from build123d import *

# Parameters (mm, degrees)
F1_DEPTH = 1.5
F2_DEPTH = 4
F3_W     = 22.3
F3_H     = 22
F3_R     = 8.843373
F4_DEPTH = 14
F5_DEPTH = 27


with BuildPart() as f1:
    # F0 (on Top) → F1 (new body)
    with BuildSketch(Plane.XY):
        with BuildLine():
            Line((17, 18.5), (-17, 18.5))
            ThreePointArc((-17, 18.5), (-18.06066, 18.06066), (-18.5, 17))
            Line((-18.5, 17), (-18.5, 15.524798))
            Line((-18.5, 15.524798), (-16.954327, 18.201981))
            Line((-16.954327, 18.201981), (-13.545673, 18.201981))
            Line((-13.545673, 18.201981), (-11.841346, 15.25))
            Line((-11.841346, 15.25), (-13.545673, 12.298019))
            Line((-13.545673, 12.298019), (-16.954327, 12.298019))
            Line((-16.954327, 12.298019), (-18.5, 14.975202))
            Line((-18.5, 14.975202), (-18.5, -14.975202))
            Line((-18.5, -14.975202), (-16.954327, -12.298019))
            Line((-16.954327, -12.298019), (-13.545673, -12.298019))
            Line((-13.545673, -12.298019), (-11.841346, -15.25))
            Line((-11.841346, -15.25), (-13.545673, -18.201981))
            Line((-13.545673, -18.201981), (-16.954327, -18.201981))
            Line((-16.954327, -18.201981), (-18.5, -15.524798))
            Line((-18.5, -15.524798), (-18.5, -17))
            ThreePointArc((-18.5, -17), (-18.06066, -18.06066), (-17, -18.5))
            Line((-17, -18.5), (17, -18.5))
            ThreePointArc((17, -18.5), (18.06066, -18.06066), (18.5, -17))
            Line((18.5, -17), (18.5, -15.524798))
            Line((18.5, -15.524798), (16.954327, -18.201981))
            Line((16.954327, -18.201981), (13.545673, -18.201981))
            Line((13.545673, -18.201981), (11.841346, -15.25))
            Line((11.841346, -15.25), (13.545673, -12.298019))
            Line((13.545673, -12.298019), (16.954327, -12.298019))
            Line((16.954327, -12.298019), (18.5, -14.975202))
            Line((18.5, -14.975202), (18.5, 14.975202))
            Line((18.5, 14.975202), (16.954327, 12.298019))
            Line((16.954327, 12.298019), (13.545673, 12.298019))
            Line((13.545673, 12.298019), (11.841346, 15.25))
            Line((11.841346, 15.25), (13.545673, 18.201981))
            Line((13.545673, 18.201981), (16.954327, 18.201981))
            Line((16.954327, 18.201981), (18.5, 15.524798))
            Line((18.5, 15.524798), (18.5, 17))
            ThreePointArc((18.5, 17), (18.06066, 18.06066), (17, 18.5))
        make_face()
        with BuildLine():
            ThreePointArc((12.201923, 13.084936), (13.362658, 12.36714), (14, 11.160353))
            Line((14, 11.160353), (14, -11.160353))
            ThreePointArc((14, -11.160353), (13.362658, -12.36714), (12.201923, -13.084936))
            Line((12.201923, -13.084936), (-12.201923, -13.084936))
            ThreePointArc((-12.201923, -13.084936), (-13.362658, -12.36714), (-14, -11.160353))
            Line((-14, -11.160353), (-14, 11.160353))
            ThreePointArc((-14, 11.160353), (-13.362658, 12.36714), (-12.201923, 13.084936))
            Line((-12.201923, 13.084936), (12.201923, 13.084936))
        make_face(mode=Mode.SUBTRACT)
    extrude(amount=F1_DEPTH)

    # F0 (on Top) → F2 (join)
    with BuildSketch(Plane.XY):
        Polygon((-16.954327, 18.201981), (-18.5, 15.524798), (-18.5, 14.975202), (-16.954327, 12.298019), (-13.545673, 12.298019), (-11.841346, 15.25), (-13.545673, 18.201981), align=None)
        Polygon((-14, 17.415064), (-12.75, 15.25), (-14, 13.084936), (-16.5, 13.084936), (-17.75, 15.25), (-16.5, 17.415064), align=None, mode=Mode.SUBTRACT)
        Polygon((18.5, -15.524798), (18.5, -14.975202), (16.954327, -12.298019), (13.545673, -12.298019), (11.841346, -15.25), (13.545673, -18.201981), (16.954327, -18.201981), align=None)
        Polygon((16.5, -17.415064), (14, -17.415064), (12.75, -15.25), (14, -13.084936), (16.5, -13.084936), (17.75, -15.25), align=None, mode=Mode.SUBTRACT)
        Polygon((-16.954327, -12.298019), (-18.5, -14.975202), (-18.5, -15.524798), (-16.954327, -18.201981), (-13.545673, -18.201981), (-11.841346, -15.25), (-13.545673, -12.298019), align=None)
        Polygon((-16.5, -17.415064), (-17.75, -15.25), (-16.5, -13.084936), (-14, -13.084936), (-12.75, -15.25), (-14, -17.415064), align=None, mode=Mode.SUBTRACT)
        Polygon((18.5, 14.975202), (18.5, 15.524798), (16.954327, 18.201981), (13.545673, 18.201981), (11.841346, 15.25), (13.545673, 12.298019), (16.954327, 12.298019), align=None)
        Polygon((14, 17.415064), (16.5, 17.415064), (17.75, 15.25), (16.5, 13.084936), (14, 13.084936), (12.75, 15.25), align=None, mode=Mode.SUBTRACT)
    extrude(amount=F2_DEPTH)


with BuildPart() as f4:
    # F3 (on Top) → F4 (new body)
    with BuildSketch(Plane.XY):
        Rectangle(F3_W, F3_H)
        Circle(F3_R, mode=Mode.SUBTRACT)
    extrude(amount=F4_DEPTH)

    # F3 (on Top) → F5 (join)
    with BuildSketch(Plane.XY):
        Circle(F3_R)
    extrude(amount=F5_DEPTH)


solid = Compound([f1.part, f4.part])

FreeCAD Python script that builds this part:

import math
import FreeCAD as App
import Part
import Sketcher
Q = App.Units.Quantity

doc = App.newDocument("Part")
body = doc.addObject("PartDesign::Body", "Body")

# Sketch on XY plane
sketch1 = body.newObject("Sketcher::SketchObject", "Sketch")
sketch1.AttachmentSupport = (doc.getObject("XY_Plane"), [""])
sketch1.MapMode = "FlatFace"
sketch1.addGeometry([
    Part.LineSegment(App.Vector(17, 18.5, 0), App.Vector(-17, 18.5, 0)),  # 0
    Part.ArcOfCircle(Part.Circle(App.Vector(-16.999999, 16.999999, 0), App.Vector(0, 0, 1), 1.500001), math.radians(90.000022), math.radians(179.999978)),  # 1
    Part.LineSegment(App.Vector(-18.5, 17, 0), App.Vector(-18.5, 15.524798, 0)),  # 2
    Part.LineSegment(App.Vector(-18.5, 15.524798, 0), App.Vector(-16.954327, 18.201981, 0)),  # 3
    Part.LineSegment(App.Vector(-16.954327, 18.201981, 0), App.Vector(-13.545673, 18.201981, 0)),  # 4
    Part.LineSegment(App.Vector(-13.545673, 18.201981, 0), App.Vector(-11.841346, 15.25, 0)),  # 5
    Part.LineSegment(App.Vector(-11.841346, 15.25, 0), App.Vector(-13.545673, 12.298019, 0)),  # 6
    Part.LineSegment(App.Vector(-13.545673, 12.298019, 0), App.Vector(-16.954327, 12.298019, 0)),  # 7
    Part.LineSegment(App.Vector(-16.954327, 12.298019, 0), App.Vector(-18.5, 14.975202, 0)),  # 8
    Part.LineSegment(App.Vector(-18.5, 14.975202, 0), App.Vector(-18.5, -14.975202, 0)),  # 9
    Part.LineSegment(App.Vector(-18.5, -14.975202, 0), App.Vector(-16.954327, -12.298019, 0)),  # 10
    Part.LineSegment(App.Vector(-16.954327, -12.298019, 0), App.Vector(-13.545673, -12.298019, 0)),  # 11
    Part.LineSegment(App.Vector(-13.545673, -12.298019, 0), App.Vector(-11.841346, -15.25, 0)),  # 12
    Part.LineSegment(App.Vector(-11.841346, -15.25, 0), App.Vector(-13.545673, -18.201981, 0)),  # 13
    Part.LineSegment(App.Vector(-13.545673, -18.201981, 0), App.Vector(-16.954327, -18.201981, 0)),  # 14
    Part.LineSegment(App.Vector(-16.954327, -18.201981, 0), App.Vector(-18.5, -15.524798, 0)),  # 15
    Part.LineSegment(App.Vector(-18.5, -15.524798, 0), App.Vector(-18.5, -17, 0)),  # 16
    Part.ArcOfCircle(Part.Circle(App.Vector(-16.999999, -16.999999, 0), App.Vector(0, 0, 1), 1.500001), math.radians(-179.999978), math.radians(-90.000022)),  # 17
    Part.LineSegment(App.Vector(-17, -18.5, 0), App.Vector(17, -18.5, 0)),  # 18
    Part.ArcOfCircle(Part.Circle(App.Vector(16.999999, -16.999999, 0), App.Vector(0, 0, 1), 1.500001), math.radians(-89.999978), math.radians(-0.000022)),  # 19
    Part.LineSegment(App.Vector(18.5, -17, 0), App.Vector(18.5, -15.524798, 0)),  # 20
    Part.LineSegment(App.Vector(18.5, -15.524798, 0), App.Vector(16.954327, -18.201981, 0)),  # 21
    Part.LineSegment(App.Vector(16.954327, -18.201981, 0), App.Vector(13.545673, -18.201981, 0)),  # 22
    Part.LineSegment(App.Vector(13.545673, -18.201981, 0), App.Vector(11.841346, -15.25, 0)),  # 23
    Part.LineSegment(App.Vector(11.841346, -15.25, 0), App.Vector(13.545673, -12.298019, 0)),  # 24
    Part.LineSegment(App.Vector(13.545673, -12.298019, 0), App.Vector(16.954327, -12.298019, 0)),  # 25
    Part.LineSegment(App.Vector(16.954327, -12.298019, 0), App.Vector(18.5, -14.975202, 0)),  # 26
    Part.LineSegment(App.Vector(18.5, -14.975202, 0), App.Vector(18.5, 14.975202, 0)),  # 27
    Part.LineSegment(App.Vector(18.5, 14.975202, 0), App.Vector(16.954327, 12.298019, 0)),  # 28
    Part.LineSegment(App.Vector(16.954327, 12.298019, 0), App.Vector(13.545673, 12.298019, 0)),  # 29
    Part.LineSegment(App.Vector(13.545673, 12.298019, 0), App.Vector(11.841346, 15.25, 0)),  # 30
    Part.LineSegment(App.Vector(11.841346, 15.25, 0), App.Vector(13.545673, 18.201981, 0)),  # 31
    Part.LineSegment(App.Vector(13.545673, 18.201981, 0), App.Vector(16.954327, 18.201981, 0)),  # 32
    Part.LineSegment(App.Vector(16.954327, 18.201981, 0), App.Vector(18.5, 15.524798, 0)),  # 33
    Part.LineSegment(App.Vector(18.5, 15.524798, 0), App.Vector(18.5, 17, 0)),  # 34
    Part.ArcOfCircle(Part.Circle(App.Vector(16.999999, 16.999999, 0), App.Vector(0, 0, 1), 1.500001), math.radians(0.000022), math.radians(89.999978)),  # 35
    Part.LineSegment(App.Vector(-12.201923, 13.084936, 0), App.Vector(12.201923, 13.084936, 0)),  # 36
    Part.ArcOfCircle(Part.Circle(App.Vector(11.462578, 10.591955, 0), App.Vector(0, 0, 1), 2.600305), math.radians(12.626178), math.radians(73.481191)),  # 37
    Part.LineSegment(App.Vector(14, 11.160353, 0), App.Vector(14, -11.160353, 0)),  # 38
    Part.ArcOfCircle(Part.Circle(App.Vector(11.462578, -10.591955, 0), App.Vector(0, 0, 1), 2.600305), math.radians(-73.481191), math.radians(-12.626178)),  # 39
    Part.LineSegment(App.Vector(12.201923, -13.084936, 0), App.Vector(-12.201923, -13.084936, 0)),  # 40
    Part.ArcOfCircle(Part.Circle(App.Vector(-11.462578, -10.591955, 0), App.Vector(0, 0, 1), 2.600305), math.radians(-167.373822), math.radians(-106.518809)),  # 41
    Part.LineSegment(App.Vector(-14, -11.160353, 0), App.Vector(-14, 11.160353, 0)),  # 42
    Part.ArcOfCircle(Part.Circle(App.Vector(-11.462578, 10.591955, 0), App.Vector(0, 0, 1), 2.600305), math.radians(106.518809), math.radians(167.373822)),  # 43
], False)
sketch1.addConstraint([
    Sketcher.Constraint("Tangent", 0, 2, 1, 1),
    Sketcher.Constraint("Tangent", 1, 2, 2, 1),
    Sketcher.Constraint("Coincident", 2, 2, 3, 1),
    Sketcher.Constraint("Coincident", 3, 2, 4, 1),
    Sketcher.Constraint("Coincident", 4, 2, 5, 1),
    Sketcher.Constraint("Coincident", 5, 2, 6, 1),
    Sketcher.Constraint("Coincident", 6, 2, 7, 1),
    Sketcher.Constraint("Coincident", 7, 2, 8, 1),
    Sketcher.Constraint("Coincident", 8, 2, 9, 1),
    Sketcher.Constraint("Coincident", 9, 2, 10, 1),
    Sketcher.Constraint("Coincident", 10, 2, 11, 1),
    Sketcher.Constraint("Coincident", 11, 2, 12, 1),
    Sketcher.Constraint("Coincident", 12, 2, 13, 1),
    Sketcher.Constraint("Coincident", 13, 2, 14, 1),
    Sketcher.Constraint("Coincident", 14, 2, 15, 1),
    Sketcher.Constraint("Coincident", 15, 2, 16, 1),
    Sketcher.Constraint("Tangent", 16, 2, 17, 1),
    Sketcher.Constraint("Tangent", 17, 2, 18, 1),
    Sketcher.Constraint("Tangent", 18, 2, 19, 1),
    Sketcher.Constraint("Tangent", 19, 2, 20, 1),
    Sketcher.Constraint("Coincident", 20, 2, 21, 1),
    Sketcher.Constraint("Coincident", 21, 2, 22, 1),
    Sketcher.Constraint("Coincident", 22, 2, 23, 1),
    Sketcher.Constraint("Coincident", 23, 2, 24, 1),
    Sketcher.Constraint("Coincident", 24, 2, 25, 1),
    Sketcher.Constraint("Coincident", 25, 2, 26, 1),
    Sketcher.Constraint("Coincident", 26, 2, 27, 1),
    Sketcher.Constraint("Coincident", 27, 2, 28, 1),
    Sketcher.Constraint("Coincident", 28, 2, 29, 1),
    Sketcher.Constraint("Coincident", 29, 2, 30, 1),
    Sketcher.Constraint("Coincident", 30, 2, 31, 1),
    Sketcher.Constraint("Coincident", 31, 2, 32, 1),
    Sketcher.Constraint("Coincident", 32, 2, 33, 1),
    Sketcher.Constraint("Coincident", 33, 2, 34, 1),
    Sketcher.Constraint("Tangent", 34, 2, 35, 1),
    Sketcher.Constraint("Tangent", 35, 2, 0, 1),
    Sketcher.Constraint("Coincident", 36, 2, 37, 2),
    Sketcher.Constraint("Coincident", 37, 1, 38, 1),
    Sketcher.Constraint("Coincident", 38, 2, 39, 2),
    Sketcher.Constraint("Coincident", 39, 1, 40, 1),
    Sketcher.Constraint("Coincident", 40, 2, 41, 2),
    Sketcher.Constraint("Coincident", 41, 1, 42, 1),
    Sketcher.Constraint("Coincident", 42, 2, 43, 2),
    Sketcher.Constraint("Coincident", 43, 1, 36, 1),
    Sketcher.Constraint("Horizontal", 0),
    Sketcher.Constraint("Vertical", 2),
    Sketcher.Constraint("Horizontal", 4),
    Sketcher.Constraint("Horizontal", 7),
    Sketcher.Constraint("Vertical", 9),
    Sketcher.Constraint("Horizontal", 11),
    Sketcher.Constraint("Horizontal", 14),
    Sketcher.Constraint("Vertical", 16),
    Sketcher.Constraint("Horizontal", 18),
    Sketcher.Constraint("Vertical", 20),
    Sketcher.Constraint("Horizontal", 22),
    Sketcher.Constraint("Horizontal", 25),
    Sketcher.Constraint("Vertical", 27),
    Sketcher.Constraint("Horizontal", 29),
    Sketcher.Constraint("Horizontal", 32),
    Sketcher.Constraint("Vertical", 34),
    Sketcher.Constraint("Horizontal", 36),
    Sketcher.Constraint("Vertical", 38),
    Sketcher.Constraint("Horizontal", 40),
    Sketcher.Constraint("Vertical", 42),
    Sketcher.Constraint("Equal", 1, 17),
    Sketcher.Constraint("Equal", 17, 19),
    Sketcher.Constraint("Equal", 19, 35),
    Sketcher.Constraint("Equal", 37, 39),
    Sketcher.Constraint("Equal", 39, 41),
    Sketcher.Constraint("Equal", 41, 43),
    Sketcher.Constraint("Symmetric", 1, 3, 19, 3, -1, 1),
    Sketcher.Constraint("Symmetric", 37, 3, 41, 3, -1, 1),
    Sketcher.Constraint("Symmetric", 39, 3, 43, 3, -1, 1),
    Sketcher.Constraint("Symmetric", 3, 2, 21, 2, -1, 1),
    Sketcher.Constraint("Symmetric", 5, 2, 23, 2, -1, 1),
    Sketcher.Constraint("Symmetric", 6, 2, 24, 2, -1, 1),
    Sketcher.Constraint("Symmetric", 8, 2, 26, 2, -1, 1),
    Sketcher.Constraint("Symmetric", 10, 2, 28, 2, -1, 1),
    Sketcher.Constraint("Symmetric", 12, 2, 30, 2, -1, 1),
    Sketcher.Constraint("Symmetric", 13, 2, 31, 2, -1, 1),
    Sketcher.Constraint("Symmetric", 15, 2, 33, 2, -1, 1),
    Sketcher.Constraint("Symmetric", 39, 3, 41, 3, -2),
    Sketcher.Constraint("Symmetric", 15, 2, 20, 2, -2),
    Sketcher.Constraint("Symmetric", 14, 2, 21, 2, -2),
    Sketcher.Constraint("Symmetric", 12, 2, 23, 2, -2),
    Sketcher.Constraint("Symmetric", 11, 2, 24, 2, -2),
    Sketcher.Constraint("Parallel", 3, 6),
    Sketcher.Constraint("Parallel", 5, 8),
    Sketcher.Constraint("Parallel", 6, 10),
    Sketcher.Constraint("Parallel", 8, 12),
    Sketcher.Constraint("Parallel", 10, 13),
    Sketcher.Constraint("Parallel", 12, 15),
    Sketcher.Constraint("Parallel", 15, 23),
    Sketcher.Constraint("Parallel", 23, 26),
    Sketcher.Constraint("Parallel", 24, 28),
    Sketcher.Constraint("Parallel", 26, 30),
    Sketcher.Constraint("Parallel", 30, 33),
    Sketcher.Constraint("Horizontal", 9, 2, 26, 2),
    Sketcher.Constraint("Horizontal", 38, 2, 41, 1),
    Sketcher.Constraint("Vertical", 4, 2, 6, 2),
    Sketcher.Constraint("Vertical", 3, 2, 7, 2),
    Sketcher.Constraint("Vertical", 2, 2, 8, 2),
    Sketcher.Constraint("Vertical", 36, 2, 39, 1),
    Sketcher.Constraint("Radius", 1, Q("1.500001 mm")),
    Sketcher.Constraint("DistanceX", 0, 2, 0, 1, Q("34 mm")),
    Sketcher.Constraint("Angle", 3, Q("59.999989 deg")),
    Sketcher.Constraint("DistanceY", -1, 1, 1, 3, Q("16.999999 mm")),
    Sketcher.Constraint("DistanceX", -1, 1, 37, 1, Q("14 mm")),
    Sketcher.Constraint("DistanceY", -1, 1, 5, 2, Q("15.25 mm")),
    Sketcher.Constraint("DistanceY", 2, 2, 2, 1, Q("1.475202 mm")),
    Sketcher.Constraint("Radius", 37, Q("2.600305 mm")),
    Sketcher.Constraint("DistanceY", 37, 3, 37, 1, Q("0.568398 mm")),
    Sketcher.Constraint("DistanceX", 4, 1, 4, 2, Q("3.408654 mm")),
    Sketcher.Constraint("DistanceX", 36, 1, 36, 2, Q("24.403846 mm")),
    Sketcher.Constraint("DistanceY", 38, 2, 38, 1, Q("22.320706 mm")),
    Sketcher.Constraint("DistanceY", -1, 1, 3, 2, Q("18.201981 mm")),
])
pad1 = body.newObject("PartDesign::Pad", "Pad")
pad1.Profile = sketch1
pad1.Length = 1.5

# Sketch on XY plane
sketch2 = body.newObject("Sketcher::SketchObject", "Sketch001")
sketch2.AttachmentSupport = (doc.getObject("XY_Plane"), [""])
sketch2.MapMode = "FlatFace"
sketch2.addGeometry([
    Part.LineSegment(App.Vector(-16.954327, 18.201981, 0), App.Vector(-18.5, 15.524798, 0)),  # 0
    Part.LineSegment(App.Vector(-18.5, 15.524798, 0), App.Vector(-18.5, 14.975202, 0)),  # 1
    Part.LineSegment(App.Vector(-18.5, 14.975202, 0), App.Vector(-16.954327, 12.298019, 0)),  # 2
    Part.LineSegment(App.Vector(-16.954327, 12.298019, 0), App.Vector(-13.545673, 12.298019, 0)),  # 3
    Part.LineSegment(App.Vector(-13.545673, 12.298019, 0), App.Vector(-11.841346, 15.25, 0)),  # 4
    Part.LineSegment(App.Vector(-11.841346, 15.25, 0), App.Vector(-13.545673, 18.201981, 0)),  # 5
    Part.LineSegment(App.Vector(-13.545673, 18.201981, 0), App.Vector(-16.954327, 18.201981, 0)),  # 6
    Part.LineSegment(App.Vector(-16.5, 17.415064, 0), App.Vector(-14, 17.415064, 0)),  # 7
    Part.LineSegment(App.Vector(-14, 17.415064, 0), App.Vector(-12.75, 15.25, 0)),  # 8
    Part.LineSegment(App.Vector(-12.75, 15.25, 0), App.Vector(-14, 13.084936, 0)),  # 9
    Part.LineSegment(App.Vector(-14, 13.084936, 0), App.Vector(-16.5, 13.084936, 0)),  # 10
    Part.LineSegment(App.Vector(-16.5, 13.084936, 0), App.Vector(-17.75, 15.25, 0)),  # 11
    Part.LineSegment(App.Vector(-17.75, 15.25, 0), App.Vector(-16.5, 17.415064, 0)),  # 12
    Part.LineSegment(App.Vector(18.5, -15.524798, 0), App.Vector(18.5, -14.975202, 0)),  # 13
    Part.LineSegment(App.Vector(18.5, -14.975202, 0), App.Vector(16.954327, -12.298019, 0)),  # 14
    Part.LineSegment(App.Vector(16.954327, -12.298019, 0), App.Vector(13.545673, -12.298019, 0)),  # 15
    Part.LineSegment(App.Vector(13.545673, -12.298019, 0), App.Vector(11.841346, -15.25, 0)),  # 16
    Part.LineSegment(App.Vector(11.841346, -15.25, 0), App.Vector(13.545673, -18.201981, 0)),  # 17
    Part.LineSegment(App.Vector(13.545673, -18.201981, 0), App.Vector(16.954327, -18.201981, 0)),  # 18
    Part.LineSegment(App.Vector(16.954327, -18.201981, 0), App.Vector(18.5, -15.524798, 0)),  # 19
    Part.LineSegment(App.Vector(17.75, -15.25, 0), App.Vector(16.5, -17.415064, 0)),  # 20
    Part.LineSegment(App.Vector(16.5, -17.415064, 0), App.Vector(14, -17.415064, 0)),  # 21
    Part.LineSegment(App.Vector(14, -17.415064, 0), App.Vector(12.75, -15.25, 0)),  # 22
    Part.LineSegment(App.Vector(12.75, -15.25, 0), App.Vector(14, -13.084936, 0)),  # 23
    Part.LineSegment(App.Vector(14, -13.084936, 0), App.Vector(16.5, -13.084936, 0)),  # 24
    Part.LineSegment(App.Vector(16.5, -13.084936, 0), App.Vector(17.75, -15.25, 0)),  # 25
    Part.LineSegment(App.Vector(-16.954327, -12.298019, 0), App.Vector(-18.5, -14.975202, 0)),  # 26
    Part.LineSegment(App.Vector(-18.5, -14.975202, 0), App.Vector(-18.5, -15.524798, 0)),  # 27
    Part.LineSegment(App.Vector(-18.5, -15.524798, 0), App.Vector(-16.954327, -18.201981, 0)),  # 28
    Part.LineSegment(App.Vector(-16.954327, -18.201981, 0), App.Vector(-13.545673, -18.201981, 0)),  # 29
    Part.LineSegment(App.Vector(-13.545673, -18.201981, 0), App.Vector(-11.841346, -15.25, 0)),  # 30
    Part.LineSegment(App.Vector(-11.841346, -15.25, 0), App.Vector(-13.545673, -12.298019, 0)),  # 31
    Part.LineSegment(App.Vector(-13.545673, -12.298019, 0), App.Vector(-16.954327, -12.298019, 0)),  # 32
    Part.LineSegment(App.Vector(-14, -17.415064, 0), App.Vector(-16.5, -17.415064, 0)),  # 33
    Part.LineSegment(App.Vector(-16.5, -17.415064, 0), App.Vector(-17.75, -15.25, 0)),  # 34
    Part.LineSegment(App.Vector(-17.75, -15.25, 0), App.Vector(-16.5, -13.084936, 0)),  # 35
    Part.LineSegment(App.Vector(-16.5, -13.084936, 0), App.Vector(-14, -13.084936, 0)),  # 36
    Part.LineSegment(App.Vector(-14, -13.084936, 0), App.Vector(-12.75, -15.25, 0)),  # 37
    Part.LineSegment(App.Vector(-12.75, -15.25, 0), App.Vector(-14, -17.415064, 0)),  # 38
    Part.LineSegment(App.Vector(18.5, 14.975202, 0), App.Vector(18.5, 15.524798, 0)),  # 39
    Part.LineSegment(App.Vector(18.5, 15.524798, 0), App.Vector(16.954327, 18.201981, 0)),  # 40
    Part.LineSegment(App.Vector(16.954327, 18.201981, 0), App.Vector(13.545673, 18.201981, 0)),  # 41
    Part.LineSegment(App.Vector(13.545673, 18.201981, 0), App.Vector(11.841346, 15.25, 0)),  # 42
    Part.LineSegment(App.Vector(11.841346, 15.25, 0), App.Vector(13.545673, 12.298019, 0)),  # 43
    Part.LineSegment(App.Vector(13.545673, 12.298019, 0), App.Vector(16.954327, 12.298019, 0)),  # 44
    Part.LineSegment(App.Vector(16.954327, 12.298019, 0), App.Vector(18.5, 14.975202, 0)),  # 45
    Part.LineSegment(App.Vector(12.75, 15.25, 0), App.Vector(14, 17.415064, 0)),  # 46
    Part.LineSegment(App.Vector(14, 17.415064, 0), App.Vector(16.5, 17.415064, 0)),  # 47
    Part.LineSegment(App.Vector(16.5, 17.415064, 0), App.Vector(17.75, 15.25, 0)),  # 48
    Part.LineSegment(App.Vector(17.75, 15.25, 0), App.Vector(16.5, 13.084936, 0)),  # 49
    Part.LineSegment(App.Vector(16.5, 13.084936, 0), App.Vector(14, 13.084936, 0)),  # 50
    Part.LineSegment(App.Vector(14, 13.084936, 0), App.Vector(12.75, 15.25, 0)),  # 51
], False)
sketch2.addConstraint([
    Sketcher.Constraint("Coincident", 0, 2, 1, 1),
    Sketcher.Constraint("Coincident", 1, 2, 2, 1),
    Sketcher.Constraint("Coincident", 2, 2, 3, 1),
    Sketcher.Constraint("Coincident", 3, 2, 4, 1),
    Sketcher.Constraint("Coincident", 4, 2, 5, 1),
    Sketcher.Constraint("Coincident", 5, 2, 6, 1),
    Sketcher.Constraint("Coincident", 6, 2, 0, 1),
    Sketcher.Constraint("Coincident", 7, 2, 8, 1),
    Sketcher.Constraint("Coincident", 8, 2, 9, 1),
    Sketcher.Constraint("Coincident", 9, 2, 10, 1),
    Sketcher.Constraint("Coincident", 10, 2, 11, 1),
    Sketcher.Constraint("Coincident", 11, 2, 12, 1),
    Sketcher.Constraint("Coincident", 12, 2, 7, 1),
    Sketcher.Constraint("Coincident", 13, 2, 14, 1),
    Sketcher.Constraint("Coincident", 14, 2, 15, 1),
    Sketcher.Constraint("Coincident", 15, 2, 16, 1),
    Sketcher.Constraint("Coincident", 16, 2, 17, 1),
    Sketcher.Constraint("Coincident", 17, 2, 18, 1),
    Sketcher.Constraint("Coincident", 18, 2, 19, 1),
    Sketcher.Constraint("Coincident", 19, 2, 13, 1),
    Sketcher.Constraint("Coincident", 20, 2, 21, 1),
    Sketcher.Constraint("Coincident", 21, 2, 22, 1),
    Sketcher.Constraint("Coincident", 22, 2, 23, 1),
    Sketcher.Constraint("Coincident", 23, 2, 24, 1),
    Sketcher.Constraint("Coincident", 24, 2, 25, 1),
    Sketcher.Constraint("Coincident", 25, 2, 20, 1),
    Sketcher.Constraint("Coincident", 26, 2, 27, 1),
    Sketcher.Constraint("Coincident", 27, 2, 28, 1),
    Sketcher.Constraint("Coincident", 28, 2, 29, 1),
    Sketcher.Constraint("Coincident", 29, 2, 30, 1),
    Sketcher.Constraint("Coincident", 30, 2, 31, 1),
    Sketcher.Constraint("Coincident", 31, 2, 32, 1),
    Sketcher.Constraint("Coincident", 32, 2, 26, 1),
    Sketcher.Constraint("Coincident", 33, 2, 34, 1),
    Sketcher.Constraint("Coincident", 34, 2, 35, 1),
    Sketcher.Constraint("Coincident", 35, 2, 36, 1),
    Sketcher.Constraint("Coincident", 36, 2, 37, 1),
    Sketcher.Constraint("Coincident", 37, 2, 38, 1),
    Sketcher.Constraint("Coincident", 38, 2, 33, 1),
    Sketcher.Constraint("Coincident", 39, 2, 40, 1),
    Sketcher.Constraint("Coincident", 40, 2, 41, 1),
    Sketcher.Constraint("Coincident", 41, 2, 42, 1),
    Sketcher.Constraint("Coincident", 42, 2, 43, 1),
    Sketcher.Constraint("Coincident", 43, 2, 44, 1),
    Sketcher.Constraint("Coincident", 44, 2, 45, 1),
    Sketcher.Constraint("Coincident", 45, 2, 39, 1),
    Sketcher.Constraint("Coincident", 46, 2, 47, 1),
    Sketcher.Constraint("Coincident", 47, 2, 48, 1),
    Sketcher.Constraint("Coincident", 48, 2, 49, 1),
    Sketcher.Constraint("Coincident", 49, 2, 50, 1),
    Sketcher.Constraint("Coincident", 50, 2, 51, 1),
    Sketcher.Constraint("Coincident", 51, 2, 46, 1),
    Sketcher.Constraint("Vertical", 1),
    Sketcher.Constraint("Horizontal", 3),
    Sketcher.Constraint("Horizontal", 6),
    Sketcher.Constraint("Horizontal", 7),
    Sketcher.Constraint("Horizontal", 10),
    Sketcher.Constraint("Vertical", 13),
    Sketcher.Constraint("Horizontal", 15),
    Sketcher.Constraint("Horizontal", 18),
    Sketcher.Constraint("Horizontal", 21),
    Sketcher.Constraint("Horizontal", 24),
    Sketcher.Constraint("Vertical", 27),
    Sketcher.Constraint("Horizontal", 29),
    Sketcher.Constraint("Horizontal", 32),
    Sketcher.Constraint("Horizontal", 33),
    Sketcher.Constraint("Horizontal", 36),
    Sketcher.Constraint("Vertical", 39),
    Sketcher.Constraint("Horizontal", 41),
    Sketcher.Constraint("Horizontal", 44),
    Sketcher.Constraint("Horizontal", 47),
    Sketcher.Constraint("Horizontal", 50),
    Sketcher.Constraint("Symmetric", 1, 2, 13, 2, -1, 1),
    Sketcher.Constraint("Symmetric", 2, 2, 14, 2, -1, 1),
    Sketcher.Constraint("Symmetric", 4, 2, 16, 2, -1, 1),
    Sketcher.Constraint("Symmetric", 5, 2, 17, 2, -1, 1),
    Sketcher.Constraint("Symmetric", 12, 2, 20, 2, -1, 1),
    Sketcher.Constraint("Symmetric", 8, 2, 22, 2, -1, 1),
    Sketcher.Constraint("Symmetric", 9, 2, 23, 2, -1, 1),
    Sketcher.Constraint("Symmetric", 11, 2, 25, 2, -1, 1),
    Sketcher.Constraint("Symmetric", 27, 2, 39, 2, -1, 1),
    Sketcher.Constraint("Symmetric", 28, 2, 40, 2, -1, 1),
    Sketcher.Constraint("Symmetric", 30, 2, 42, 2, -1, 1),
    Sketcher.Constraint("Symmetric", 31, 2, 43, 2, -1, 1),
    Sketcher.Constraint("Symmetric", 38, 2, 46, 2, -1, 1),
    Sketcher.Constraint("Symmetric", 34, 2, 48, 2, -1, 1),
    Sketcher.Constraint("Symmetric", 35, 2, 49, 2, -1, 1),
    Sketcher.Constraint("Symmetric", 37, 2, 51, 2, -1, 1),
    Sketcher.Constraint("Symmetric", 13, 2, 26, 2, -2),
    Sketcher.Constraint("Symmetric", 18, 2, 28, 2, -2),
    Sketcher.Constraint("Symmetric", 16, 2, 30, 2, -2),
    Sketcher.Constraint("Symmetric", 15, 2, 31, 2, -2),
    Sketcher.Constraint("Symmetric", 20, 2, 33, 2, -2),
    Sketcher.Constraint("Symmetric", 25, 2, 34, 2, -2),
    Sketcher.Constraint("Symmetric", 24, 2, 35, 2, -2),
    Sketcher.Constraint("Symmetric", 22, 2, 37, 2, -2),
    Sketcher.Constraint("Parallel", 0, 4),
    Sketcher.Constraint("Parallel", 2, 5),
    Sketcher.Constraint("Parallel", 5, 8),
    Sketcher.Constraint("Parallel", 4, 9),
    Sketcher.Constraint("Parallel", 8, 11),
    Sketcher.Constraint("Parallel", 9, 12),
    Sketcher.Constraint("Parallel", 12, 16),
    Sketcher.Constraint("Parallel", 16, 19),
    Sketcher.Constraint("Parallel", 17, 22),
    Sketcher.Constraint("Parallel", 22, 25),
    Sketcher.Constraint("Parallel", 23, 26),
    Sketcher.Constraint("Parallel", 25, 28),
    Sketcher.Constraint("Parallel", 26, 30),
    Sketcher.Constraint("Parallel", 28, 31),
    Sketcher.Constraint("Parallel", 34, 37),
    Sketcher.Constraint("Parallel", 35, 38),
    Sketcher.Constraint("Parallel", 38, 42),
    Sketcher.Constraint("Parallel", 42, 45),
    Sketcher.Constraint("Parallel", 43, 48),
    Sketcher.Constraint("Parallel", 48, 51),
    Sketcher.Constraint("Horizontal", 4, 2, 8, 2),
    Sketcher.Constraint("Horizontal", 8, 2, 11, 2),
    Sketcher.Constraint("Horizontal", 0, 2, 39, 2),
    Sketcher.Constraint("Horizontal", 1, 2, 45, 2),
    Sketcher.Constraint("Vertical", 3, 2, 5, 2),
    Sketcher.Constraint("Vertical", 2, 2, 6, 2),
    Sketcher.Constraint("Vertical", 7, 2, 9, 2),
    Sketcher.Constraint("Angle", 0, Q("-120.000011 deg")),
    Sketcher.Constraint("DistanceX", 7, 1, 7, 2, Q("2.5 mm")),
    Sketcher.Constraint("DistanceX", 7, 2, -1, 1, Q("14 mm")),
    Sketcher.Constraint("DistanceX", 1, 2, 10, 2, Q("2 mm")),
    Sketcher.Constraint("Distance", 8, Q("2.5 mm")),
    Sketcher.Constraint("DistanceX", 3, 2, 14, 2, Q("30.5 mm")),
    Sketcher.Constraint("DistanceY", 17, 2, 3, 2, Q("30.5 mm")),
    Sketcher.Constraint("DistanceY", 4, 2, 0, 2, Q("0.274798 mm")),
    Sketcher.Constraint("DistanceX", 3, 1, 3, 2, Q("3.408654 mm")),
])
pad2 = body.newObject("PartDesign::Pad", "Pad001")
pad2.Profile = sketch2
pad2.Length = 4
body2 = doc.addObject("PartDesign::Body", "Body001")

# Sketch on XY plane
sketch3 = body2.newObject("Sketcher::SketchObject", "Sketch002")
sketch3.AttachmentSupport = (doc.getObject("XY_Plane001"), [""])
sketch3.MapMode = "FlatFace"
sketch3.addGeometry([
    Part.LineSegment(App.Vector(-11.15, 11, 0), App.Vector(-11.15, -11, 0)),  # 0
    Part.LineSegment(App.Vector(-11.15, -11, 0), App.Vector(11.15, -11, 0)),  # 1
    Part.LineSegment(App.Vector(11.15, -11, 0), App.Vector(11.15, 11, 0)),  # 2
    Part.LineSegment(App.Vector(11.15, 11, 0), App.Vector(-11.15, 11, 0)),  # 3
    Part.Circle(App.Vector(0, 0, 0), App.Vector(0, 0, 1), 8.843373),  # 4
], False)
sketch3.addConstraint([
    Sketcher.Constraint("Coincident", 0, 2, 1, 1),
    Sketcher.Constraint("Coincident", 1, 2, 2, 1),
    Sketcher.Constraint("Coincident", 2, 2, 3, 1),
    Sketcher.Constraint("Coincident", 3, 2, 0, 1),
    Sketcher.Constraint("Vertical", 0),
    Sketcher.Constraint("Horizontal", 1),
    Sketcher.Constraint("Vertical", 2),
    Sketcher.Constraint("Horizontal", 3),
    Sketcher.Constraint("Coincident", 4, 3, -1, 1),
    Sketcher.Constraint("Symmetric", 0, 2, 2, 2, -1, 1),
    Sketcher.Constraint("DistanceY", 0, 2, 0, 1, Q("22 mm")),
    Sketcher.Constraint("DistanceX", 1, 1, 1, 2, Q("22.3 mm")),
    Sketcher.Constraint("Diameter", 4, Q("17.686746 mm")),
])
pad3 = body2.newObject("PartDesign::Pad", "Pad002")
pad3.Profile = sketch3
pad3.Length = 14

# Sketch on XY plane
sketch4 = body2.newObject("Sketcher::SketchObject", "Sketch003")
sketch4.AttachmentSupport = (doc.getObject("XY_Plane001"), [""])
sketch4.MapMode = "FlatFace"
sketch4.addGeometry(Part.Circle(App.Vector(0, 0, 0), App.Vector(0, 0, 1), 8.843373), False)
sketch4.addConstraint([
    Sketcher.Constraint("Coincident", 0, 3, -1, 1),
    Sketcher.Constraint("Diameter", 0, Q("17.686746 mm")),
])
pad4 = body2.newObject("PartDesign::Pad", "Pad003")
pad4.Profile = sketch4
pad4.Length = 27

doc.recompute()
